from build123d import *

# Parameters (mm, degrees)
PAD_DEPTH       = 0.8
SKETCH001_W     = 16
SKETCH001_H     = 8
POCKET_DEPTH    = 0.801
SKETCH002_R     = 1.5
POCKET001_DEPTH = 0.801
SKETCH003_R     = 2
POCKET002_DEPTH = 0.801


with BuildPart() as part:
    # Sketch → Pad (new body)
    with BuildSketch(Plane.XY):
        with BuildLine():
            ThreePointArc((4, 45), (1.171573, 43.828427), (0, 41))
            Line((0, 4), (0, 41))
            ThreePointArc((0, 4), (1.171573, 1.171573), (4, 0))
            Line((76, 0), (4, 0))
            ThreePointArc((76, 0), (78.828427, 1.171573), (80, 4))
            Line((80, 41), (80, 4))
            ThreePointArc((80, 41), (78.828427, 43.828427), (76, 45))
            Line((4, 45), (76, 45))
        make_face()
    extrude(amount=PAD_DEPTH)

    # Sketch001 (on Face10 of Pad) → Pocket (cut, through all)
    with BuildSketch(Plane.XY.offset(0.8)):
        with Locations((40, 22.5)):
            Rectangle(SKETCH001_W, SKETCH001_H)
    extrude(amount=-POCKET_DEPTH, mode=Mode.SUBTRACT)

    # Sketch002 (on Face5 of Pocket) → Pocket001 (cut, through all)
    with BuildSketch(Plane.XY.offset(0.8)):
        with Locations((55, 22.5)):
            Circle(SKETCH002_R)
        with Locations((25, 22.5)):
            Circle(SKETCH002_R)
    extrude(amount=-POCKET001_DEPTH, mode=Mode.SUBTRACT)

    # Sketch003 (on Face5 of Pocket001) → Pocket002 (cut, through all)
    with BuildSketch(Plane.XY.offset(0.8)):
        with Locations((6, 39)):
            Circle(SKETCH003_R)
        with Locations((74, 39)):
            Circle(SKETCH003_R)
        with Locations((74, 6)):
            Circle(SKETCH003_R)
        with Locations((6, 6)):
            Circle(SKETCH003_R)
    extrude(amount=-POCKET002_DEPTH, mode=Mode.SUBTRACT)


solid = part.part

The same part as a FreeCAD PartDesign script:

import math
import FreeCAD as App
import Part
import Sketcher
Q = App.Units.Quantity


def add_polygon(sketch, points):
    """Adds a closed chain of lines whose ends are joined by coincident constraints."""
    first, n = sketch.GeometryCount, len(points)
    for a, b in zip(points, points[1:] + points[:1]):
        sketch.addGeometry(Part.LineSegment(App.Vector(*a, 0), App.Vector(*b, 0)), False)
    for i in range(n):
        sketch.addConstraint(Sketcher.Constraint("Coincident", first + i, 2, first + (i + 1) % n, 1))

doc = App.newDocument("Part")
body = doc.addObject("PartDesign::Body", "Body")

# Sketch on XY plane
sketch1 = doc.addObject("Sketcher::SketchObject", "Sketch")
body.addObject(sketch1)
sketch1.AttachmentSupport = (doc.XY_Plane, [""])
sketch1.MapMode = "FlatFace"
sketch1.addGeometry([
    Part.ArcOfCircle(Part.Circle(App.Vector(4, 41, 0), App.Vector(0, 0, 1), 4), math.radians(90), math.radians(180)),  # 0
    Part.LineSegment(App.Vector(0, 41, 0), App.Vector(0, 4, 0)),  # 1
    Part.ArcOfCircle(Part.Circle(App.Vector(4, 4, 0), App.Vector(0, 0, 1), 4), math.radians(-180), math.radians(-90)),  # 2
    Part.LineSegment(App.Vector(4, 0, 0), App.Vector(76, 0, 0)),  # 3
    Part.ArcOfCircle(Part.Circle(App.Vector(76, 4, 0), App.Vector(0, 0, 1), 4), math.radians(-90), math.radians(0)),  # 4
    Part.LineSegment(App.Vector(80, 4, 0), App.Vector(80, 41, 0)),  # 5
    Part.ArcOfCircle(Part.Circle(App.Vector(76, 41, 0), App.Vector(0, 0, 1), 4), math.radians(0), math.radians(90)),  # 6
    Part.LineSegment(App.Vector(76, 45, 0), App.Vector(4, 45, 0)),  # 7
], False)
sketch1.addConstraint([
    Sketcher.Constraint("Tangent", 0, 2, 1, 1),
    Sketcher.Constraint("Tangent", 1, 2, 2, 1),
    Sketcher.Constraint("Tangent", 2, 2, 3, 1),
    Sketcher.Constraint("Tangent", 3, 2, 4, 1),
    Sketcher.Constraint("Tangent", 4, 2, 5, 1),
    Sketcher.Constraint("Tangent", 5, 2, 6, 1),
    Sketcher.Constraint("Tangent", 6, 2, 7, 1),
    Sketcher.Constraint("Tangent", 7, 2, 0, 1),
    Sketcher.Constraint("Vertical", 1),
    Sketcher.Constraint("Horizontal", 3),
    Sketcher.Constraint("Vertical", 5),
    Sketcher.Constraint("Horizontal", 7),
    Sketcher.Constraint("Equal", 0, 2),
    Sketcher.Constraint("Equal", 2, 4),
    Sketcher.Constraint("Equal", 4, 6),
    Sketcher.Constraint("PointOnObject", 0, 2, -2),
    Sketcher.Constraint("PointOnObject", 2, 2, -1),
    Sketcher.Constraint("Radius", 0, Q("4 mm")),
    Sketcher.Constraint("DistanceX", 3, 1, 3, 2, Q("72 mm")),
    Sketcher.Constraint("DistanceY", 1, 2, 1, 1, Q("37 mm")),
])
pad1 = doc.addObject("PartDesign::Pad", "Pad")
body.addObject(pad1)
pad1.Profile = sketch1
pad1.Length = 0.8

# Sketch on XY plane
sketch2 = doc.addObject("Sketcher::SketchObject", "Sketch001")
body.addObject(sketch2)
sketch2.AttachmentSupport = (doc.XY_Plane, [""])
sketch2.MapMode = "FlatFace"
sketch2.AttachmentOffset = App.Placement(App.Vector(0, 0, 0.8), App.Rotation())
add_polygon(sketch2, [(32, 26), (32, 18), (48, 18), (48, 26)])  # lines 0-3
sketch2.addConstraint([
    Sketcher.Constraint("Vertical", 0),
    Sketcher.Constraint("Horizontal", 1),
    Sketcher.Constraint("Vertical", 2),
    Sketcher.Constraint("Horizontal", 3),
    Sketcher.Constraint("DistanceX", 1, 1, 1, 2, Q("16 mm")),
    Sketcher.Constraint("DistanceY", 0, 2, 0, 1, Q("8 mm")),
    Sketcher.Constraint("DistanceX", -1, 1, 0, 2, Q("32 mm")),
    Sketcher.Constraint("DistanceY", -1, 1, 0, 2, Q("18.5 mm")),
])
pocket1 = doc.addObject("PartDesign::Pocket", "Pocket")
body.addObject(pocket1)
pocket1.Profile = sketch2
pocket1.Type = "ThroughAll"

# Sketch on XY plane
sketch3 = doc.addObject("Sketcher::SketchObject", "Sketch002")
body.addObject(sketch3)
sketch3.AttachmentSupport = (doc.XY_Plane, [""])
sketch3.MapMode = "FlatFace"
sketch3.AttachmentOffset = App.Placement(App.Vector(0, 0, 0.8), App.Rotation())
sketch3.addGeometry([
    Part.Circle(App.Vector(55, 22.5, 0), App.Vector(0, 0, 1), 1.5),
    Part.Circle(App.Vector(25, 22.5, 0), App.Vector(0, 0, 1), 1.5),
], False)
sketch3.addConstraint([
    Sketcher.Constraint("Equal", 0, 1),
    Sketcher.Constraint("Horizontal", 0, 3, 1, 3),
    Sketcher.Constraint("Diameter", 0, Q("3 mm")),
    Sketcher.Constraint("DistanceX", -1, 1, 0, 3, Q("55 mm")),
    Sketcher.Constraint("DistanceX", -1, 1, 1, 3, Q("25 mm")),
    Sketcher.Constraint("DistanceY", -1, 1, 0, 3, Q("22.5 mm")),
])
pocket2 = doc.addObject("PartDesign::Pocket", "Pocket001")
body.addObject(pocket2)
pocket2.Profile = sketch3
pocket2.Type = "ThroughAll"

# Sketch on XY plane
sketch4 = doc.addObject("Sketcher::SketchObject", "Sketch003")
body.addObject(sketch4)
sketch4.AttachmentSupport = (doc.XY_Plane, [""])
sketch4.MapMode = "FlatFace"
sketch4.AttachmentOffset = App.Placement(App.Vector(0, 0, 0.8), App.Rotation())
sketch4.addGeometry([
    Part.Circle(App.Vector(6, 39, 0), App.Vector(0, 0, 1), 2),
    Part.Circle(App.Vector(74, 39, 0), App.Vector(0, 0, 1), 2),
    Part.Circle(App.Vector(74, 6, 0), App.Vector(0, 0, 1), 2),
    Part.Circle(App.Vector(6, 6, 0), App.Vector(0, 0, 1), 2),
], False)
sketch4.addConstraint([
    Sketcher.Constraint("Equal", 0, 1),
    Sketcher.Constraint("Equal", 1, 2),
    Sketcher.Constraint("Equal", 2, 3),
    Sketcher.Constraint("Horizontal", 0, 3, 1, 3),
    Sketcher.Constraint("Horizontal", 2, 3, 3, 3),
    Sketcher.Constraint("Vertical", 1, 3, 2, 3),
    Sketcher.Constraint("Vertical", 0, 3, 3, 3),
    Sketcher.Constraint("Diameter", 0, Q("4 mm")),
    Sketcher.Constraint("DistanceX", -1, 1, 0, 3, Q("6 mm")),
    Sketcher.Constraint("DistanceY", -1, 1, 0, 3, Q("39 mm")),
    Sketcher.Constraint("DistanceX", -1, 1, 1, 3, Q("74 mm")),
    Sketcher.Constraint("DistanceY", -1, 1, 2, 3, Q("6 mm")),
])
pocket3 = doc.addObject("PartDesign::Pocket", "Pocket002")
body.addObject(pocket3)
pocket3.Profile = sketch4
pocket3.Type = "ThroughAll"

doc.recompute()
